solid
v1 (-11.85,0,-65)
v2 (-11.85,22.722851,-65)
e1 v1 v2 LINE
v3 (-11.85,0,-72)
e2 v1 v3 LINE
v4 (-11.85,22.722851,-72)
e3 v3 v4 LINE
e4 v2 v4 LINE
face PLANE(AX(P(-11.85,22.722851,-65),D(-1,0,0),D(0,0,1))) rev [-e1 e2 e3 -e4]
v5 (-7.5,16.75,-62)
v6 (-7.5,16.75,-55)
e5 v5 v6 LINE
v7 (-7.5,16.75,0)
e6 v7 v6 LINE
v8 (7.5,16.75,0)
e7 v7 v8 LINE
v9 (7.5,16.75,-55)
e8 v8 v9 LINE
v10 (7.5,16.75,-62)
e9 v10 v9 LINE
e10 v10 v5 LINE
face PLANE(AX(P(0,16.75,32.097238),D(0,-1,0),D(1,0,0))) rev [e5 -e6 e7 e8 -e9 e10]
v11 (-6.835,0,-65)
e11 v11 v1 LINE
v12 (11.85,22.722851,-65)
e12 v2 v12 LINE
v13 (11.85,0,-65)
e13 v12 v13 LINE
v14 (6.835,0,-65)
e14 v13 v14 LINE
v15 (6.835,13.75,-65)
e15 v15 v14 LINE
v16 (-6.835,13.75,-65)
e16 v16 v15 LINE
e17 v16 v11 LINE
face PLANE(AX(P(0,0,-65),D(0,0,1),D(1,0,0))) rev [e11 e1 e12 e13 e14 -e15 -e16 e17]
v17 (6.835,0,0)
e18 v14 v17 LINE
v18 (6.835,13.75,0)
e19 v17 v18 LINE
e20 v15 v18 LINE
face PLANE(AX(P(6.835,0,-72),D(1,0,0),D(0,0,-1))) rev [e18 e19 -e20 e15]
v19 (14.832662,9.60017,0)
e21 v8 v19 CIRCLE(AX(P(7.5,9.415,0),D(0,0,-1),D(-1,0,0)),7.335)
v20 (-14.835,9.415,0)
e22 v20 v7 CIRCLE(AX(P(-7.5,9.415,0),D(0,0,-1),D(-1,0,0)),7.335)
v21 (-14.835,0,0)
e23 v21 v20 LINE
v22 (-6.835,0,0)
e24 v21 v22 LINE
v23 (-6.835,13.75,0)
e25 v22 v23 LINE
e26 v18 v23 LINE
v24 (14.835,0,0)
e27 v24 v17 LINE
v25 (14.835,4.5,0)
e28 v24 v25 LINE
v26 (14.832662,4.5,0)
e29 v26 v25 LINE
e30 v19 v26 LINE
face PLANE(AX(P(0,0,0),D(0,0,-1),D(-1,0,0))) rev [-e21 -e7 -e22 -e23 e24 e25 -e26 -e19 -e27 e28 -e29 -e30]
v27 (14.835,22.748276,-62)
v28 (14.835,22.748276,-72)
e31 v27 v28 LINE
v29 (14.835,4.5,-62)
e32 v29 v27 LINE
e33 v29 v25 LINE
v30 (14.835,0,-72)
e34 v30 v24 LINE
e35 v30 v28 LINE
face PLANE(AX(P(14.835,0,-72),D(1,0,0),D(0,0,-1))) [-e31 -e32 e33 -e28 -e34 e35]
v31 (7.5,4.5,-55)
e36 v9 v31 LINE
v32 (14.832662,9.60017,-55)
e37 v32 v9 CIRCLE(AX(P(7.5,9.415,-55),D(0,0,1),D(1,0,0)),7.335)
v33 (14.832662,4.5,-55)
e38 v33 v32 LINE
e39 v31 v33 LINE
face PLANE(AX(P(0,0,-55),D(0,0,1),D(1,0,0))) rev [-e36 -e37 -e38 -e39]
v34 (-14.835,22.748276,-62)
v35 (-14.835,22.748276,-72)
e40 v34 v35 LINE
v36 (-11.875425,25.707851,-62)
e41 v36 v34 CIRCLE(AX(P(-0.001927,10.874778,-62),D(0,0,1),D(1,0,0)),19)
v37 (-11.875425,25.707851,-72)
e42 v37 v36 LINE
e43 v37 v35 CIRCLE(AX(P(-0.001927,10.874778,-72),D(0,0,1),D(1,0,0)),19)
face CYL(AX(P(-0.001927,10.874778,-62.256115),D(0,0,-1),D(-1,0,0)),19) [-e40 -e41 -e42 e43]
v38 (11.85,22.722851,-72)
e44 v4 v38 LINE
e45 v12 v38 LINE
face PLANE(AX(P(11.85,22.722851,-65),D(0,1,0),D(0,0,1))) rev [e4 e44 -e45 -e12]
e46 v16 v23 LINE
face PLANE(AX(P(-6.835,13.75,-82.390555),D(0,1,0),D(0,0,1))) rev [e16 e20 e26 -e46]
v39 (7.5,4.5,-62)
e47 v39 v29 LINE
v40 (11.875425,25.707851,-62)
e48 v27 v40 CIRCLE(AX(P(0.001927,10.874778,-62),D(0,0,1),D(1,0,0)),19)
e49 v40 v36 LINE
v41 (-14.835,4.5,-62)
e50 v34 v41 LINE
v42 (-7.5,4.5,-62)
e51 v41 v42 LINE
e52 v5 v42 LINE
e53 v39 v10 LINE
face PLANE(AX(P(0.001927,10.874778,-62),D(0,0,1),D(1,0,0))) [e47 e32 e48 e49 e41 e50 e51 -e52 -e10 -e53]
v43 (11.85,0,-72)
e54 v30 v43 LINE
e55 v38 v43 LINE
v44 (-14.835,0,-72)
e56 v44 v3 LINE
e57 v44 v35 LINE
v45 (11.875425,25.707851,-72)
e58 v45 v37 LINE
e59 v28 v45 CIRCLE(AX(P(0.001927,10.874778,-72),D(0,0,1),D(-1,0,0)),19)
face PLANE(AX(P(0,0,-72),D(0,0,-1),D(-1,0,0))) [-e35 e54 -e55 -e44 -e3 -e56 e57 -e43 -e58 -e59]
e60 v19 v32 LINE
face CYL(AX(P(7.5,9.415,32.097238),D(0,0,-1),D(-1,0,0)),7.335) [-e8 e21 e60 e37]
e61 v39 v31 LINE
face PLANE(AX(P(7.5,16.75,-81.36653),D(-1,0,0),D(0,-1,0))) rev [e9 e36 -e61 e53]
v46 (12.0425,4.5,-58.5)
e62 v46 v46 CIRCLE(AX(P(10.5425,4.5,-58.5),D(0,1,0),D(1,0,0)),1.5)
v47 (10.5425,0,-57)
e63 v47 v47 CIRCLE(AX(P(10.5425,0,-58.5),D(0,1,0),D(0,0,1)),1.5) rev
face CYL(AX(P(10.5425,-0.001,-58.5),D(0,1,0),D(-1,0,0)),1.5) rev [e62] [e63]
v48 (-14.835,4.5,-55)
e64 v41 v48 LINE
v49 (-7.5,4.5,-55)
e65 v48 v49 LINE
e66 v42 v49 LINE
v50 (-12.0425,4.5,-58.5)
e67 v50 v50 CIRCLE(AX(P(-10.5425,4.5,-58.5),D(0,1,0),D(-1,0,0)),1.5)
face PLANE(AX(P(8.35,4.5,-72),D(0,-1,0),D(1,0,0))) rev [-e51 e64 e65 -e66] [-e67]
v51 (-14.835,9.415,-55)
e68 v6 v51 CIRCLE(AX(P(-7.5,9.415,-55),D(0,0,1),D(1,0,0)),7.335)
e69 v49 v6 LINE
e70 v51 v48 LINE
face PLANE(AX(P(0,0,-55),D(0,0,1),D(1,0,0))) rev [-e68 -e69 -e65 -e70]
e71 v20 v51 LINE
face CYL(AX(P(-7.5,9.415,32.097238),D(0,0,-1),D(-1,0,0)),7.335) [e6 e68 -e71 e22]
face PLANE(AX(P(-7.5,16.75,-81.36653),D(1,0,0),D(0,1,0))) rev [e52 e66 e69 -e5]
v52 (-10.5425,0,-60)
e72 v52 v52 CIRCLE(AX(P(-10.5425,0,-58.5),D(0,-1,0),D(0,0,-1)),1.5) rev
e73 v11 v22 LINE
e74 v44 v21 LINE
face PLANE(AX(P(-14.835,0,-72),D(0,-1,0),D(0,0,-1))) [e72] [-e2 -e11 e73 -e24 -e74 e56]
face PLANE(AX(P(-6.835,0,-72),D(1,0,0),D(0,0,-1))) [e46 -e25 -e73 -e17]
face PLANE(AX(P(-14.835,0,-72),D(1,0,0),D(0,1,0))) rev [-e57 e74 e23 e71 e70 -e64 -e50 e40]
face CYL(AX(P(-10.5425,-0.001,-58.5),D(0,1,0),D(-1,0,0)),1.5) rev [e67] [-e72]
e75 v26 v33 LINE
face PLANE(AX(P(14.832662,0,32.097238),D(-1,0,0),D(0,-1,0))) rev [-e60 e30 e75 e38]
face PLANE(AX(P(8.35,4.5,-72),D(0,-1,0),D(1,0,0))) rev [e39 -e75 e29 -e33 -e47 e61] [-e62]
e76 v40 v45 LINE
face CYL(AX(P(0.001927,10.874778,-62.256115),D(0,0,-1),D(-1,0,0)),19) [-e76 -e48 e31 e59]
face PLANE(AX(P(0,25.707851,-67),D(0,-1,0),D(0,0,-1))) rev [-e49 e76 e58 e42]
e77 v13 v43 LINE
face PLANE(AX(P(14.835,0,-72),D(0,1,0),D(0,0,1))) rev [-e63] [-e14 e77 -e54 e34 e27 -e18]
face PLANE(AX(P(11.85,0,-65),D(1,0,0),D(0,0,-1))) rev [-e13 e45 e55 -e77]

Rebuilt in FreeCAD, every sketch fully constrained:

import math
import FreeCAD as App
import Part
import Sketcher
from FreeCAD import Vector
Q = App.Units.Quantity


def add_polygon(sketch, points):
    """Adds a closed chain of lines whose ends are joined by coincident constraints."""
    first, n = sketch.GeometryCount, len(points)
    for a, b in zip(points, points[1:] + points[:1]):
        sketch.addGeometry(Part.LineSegment(App.Vector(*a, 0), App.Vector(*b, 0)), False)
    for i in range(n):
        sketch.addConstraint(Sketcher.Constraint("Coincident", first + i, 2, first + (i + 1) % n, 1))

doc = App.newDocument("Part")
body = doc.addObject("PartDesign::Body", "Body")

sketch1 = body.newObject("Sketcher::SketchObject", "Sketch")
sketch1.AttachmentSupport = (doc.getObject("XY_Plane"), [""])
sketch1.MapMode = "FlatFace"
add_polygon(sketch1, [(-14.8, 0), (-6.8, 0), (-6.8, 3), (6.8, 3), (6.8, 0), (14.8, 0), (14.8, 4.5), (-14.8, 4.5)])
sketch1.addConstraint(Sketcher.Constraint("Horizontal", 0))
sketch1.addConstraint(Sketcher.Constraint("Vertical", 1))
sketch1.addConstraint(Sketcher.Constraint("Horizontal", 2))
sketch1.addConstraint(Sketcher.Constraint("Vertical", 3))
sketch1.addConstraint(Sketcher.Constraint("Horizontal", 4))
sketch1.addConstraint(Sketcher.Constraint("Vertical", 5))
sketch1.addConstraint(Sketcher.Constraint("Horizontal", 6))
sketch1.addConstraint(Sketcher.Constraint("Vertical", 7))
sketch1.addConstraint(Sketcher.Constraint("Symmetric", 0, 2, 3, 2, -1, 1))
sketch1.addConstraint(Sketcher.Constraint("Symmetric", 4, 2, 7, 2, -2))
sketch1.addConstraint(Sketcher.Constraint("DistanceX", 0, 1, 0, 2, Q("8 mm")))
sketch1.addConstraint(Sketcher.Constraint("DistanceY", 1, 1, 1, 2, Q("3 mm")))
sketch1.addConstraint(Sketcher.Constraint("DistanceY", 5, 1, 5, 2, Q("4.5 mm")))
sketch1.addConstraint(Sketcher.Constraint("DistanceX", 2, 1, 2, 2, Q("13.67 mm")))
pad1 = body.newObject("PartDesign::Pad", "Pad")
pad1.Profile = sketch1
pad1.Length = 72
pad1.Reversed = True

sketch2 = body.newObject("Sketcher::SketchObject", "Sketch001")
sketch2.AttachmentSupport = (doc.getObject("XY_Plane"), [""])
sketch2.MapMode = "FlatFace"
sketch2.AttachmentOffset = App.Placement(Vector(0, 0, -72), App.Rotation())
add_polygon(sketch2, [(14.8, 25.7), (14.8, 0), (10.3, 0), (10.3, 21.2), (-10.3, 21.2), (-10.3, 0), (-14.8, 0), (-14.8, 25.7)])
sketch2.addConstraint(Sketcher.Constraint("Vertical", 0))
sketch2.addConstraint(Sketcher.Constraint("Horizontal", 1))
sketch2.addConstraint(Sketcher.Constraint("Vertical", 2))
sketch2.addConstraint(Sketcher.Constraint("Horizontal", 3))
sketch2.addConstraint(Sketcher.Constraint("Vertical", 4))
sketch2.addConstraint(Sketcher.Constraint("Horizontal", 5))
sketch2.addConstraint(Sketcher.Constraint("Vertical", 6))
sketch2.addConstraint(Sketcher.Constraint("Horizontal", 7))
sketch2.addConstraint(Sketcher.Constraint("Symmetric", 1, 2, 4, 2, -1, 1))
sketch2.addConstraint(Sketcher.Constraint("Symmetric", 0, 2, 5, 2, -2))
sketch2.addConstraint(Sketcher.Constraint("DistanceX", 3, 2, 3, 1, Q("20.7 mm")))
sketch2.addConstraint(Sketcher.Constraint("DistanceX", 7, 1, 7, 2, Q("29.67 mm")))
sketch2.addConstraint(Sketcher.Constraint("DistanceY", 3, 2, 6, 2, Q("4.485 mm")))
sketch2.addConstraint(Sketcher.Constraint("DistanceY", 0, 2, 0, 1, Q("25.707851 mm")))
pad2 = body.newObject("PartDesign::Pad", "Pad001")
pad2.Profile = sketch2
pad2.Length = 5

sketch3 = body.newObject("Sketcher::SketchObject", "Sketch002")
sketch3.AttachmentSupport = (doc.getObject("XY_Plane"), [""])
sketch3.MapMode = "FlatFace"
sketch3.AttachmentOffset = App.Placement(Vector(0, 0, -72), App.Rotation())
sketch3.addGeometry(Part.LineSegment(Vector(15.00907, 25.881921, 0), Vector(15.00907, 22.527488, 0)), False)
sketch3.addGeometry(Part.ArcOfCircle(Part.Circle(Vector(0.001927, 10.874778, 0), Vector(0, 0, 1), 19), math.radians(37.828538), math.radians(52.171462)), False)
sketch3.addGeometry(Part.LineSegment(Vector(11.654637, 25.881921, 0), Vector(15.00907, 25.881921, 0)), False)
sketch3.addGeometry(Part.LineSegment(Vector(-15.00907, 22.527488, 0), Vector(-15.00907, 25.881921, 0)), False)
sketch3.addGeometry(Part.LineSegment(Vector(-15.00907, 25.881921, 0), Vector(-11.654637, 25.881921, 0)), False)
sketch3.addGeometry(Part.ArcOfCircle(Part.Circle(Vector(-0.001927, 10.874778, 0), Vector(0, 0, 1), 19), math.radians(127.828538), math.radians(142.171462)), False)
sketch3.addConstraint(Sketcher.Constraint("Coincident", 0, 2, 1, 1))
sketch3.addConstraint(Sketcher.Constraint("Coincident", 1, 2, 2, 1))
sketch3.addConstraint(Sketcher.Constraint("Coincident", 2, 2, 0, 1))
sketch3.addConstraint(Sketcher.Constraint("Coincident", 3, 2, 4, 1))
sketch3.addConstraint(Sketcher.Constraint("Coincident", 4, 2, 5, 1))
sketch3.addConstraint(Sketcher.Constraint("Coincident", 5, 2, 3, 1))
sketch3.addConstraint(Sketcher.Constraint("Vertical", 0))
sketch3.addConstraint(Sketcher.Constraint("Horizontal", 2))
sketch3.addConstraint(Sketcher.Constraint("Vertical", 3))
sketch3.addConstraint(Sketcher.Constraint("Horizontal", 4))
sketch3.addConstraint(Sketcher.Constraint("Equal", 1, 5))
sketch3.addConstraint(Sketcher.Constraint("Symmetric", 1, 3, 5, 3, -2))
sketch3.addConstraint(Sketcher.Constraint("Symmetric", 2, 2, 3, 2, -2))
sketch3.addConstraint(Sketcher.Constraint("Equal", 4, 0))
sketch3.addConstraint(Sketcher.Constraint("Radius", 1, Q("19 mm")))
sketch3.addConstraint(Sketcher.Constraint("DistanceX", 2, 1, 2, 2, Q("3.354433 mm")))
sketch3.addConstraint(Sketcher.Constraint("DistanceY", -1, 1, 1, 3, Q("10.874778 mm")))
sketch3.addConstraint(Sketcher.Constraint("DistanceX", -1, 1, 0, 2, Q("15.00907 mm")))
pocket1 = body.newObject("PartDesign::Pocket", "Pocket")
pocket1.Profile = sketch3
pocket1.Length = 5
pocket1.Reversed = True

sketch4 = body.newObject("Sketcher::SketchObject", "Sketch003")
sketch4.AttachmentSupport = (doc.getObject("XY_Plane"), [""])
sketch4.MapMode = "FlatFace"
sketch4.AttachmentOffset = App.Placement(Vector(0, 0, -67), App.Rotation())
sketch4.addGeometry(Part.LineSegment(Vector(14.835, 4.5, 0), Vector(14.835, 22.748276, 0)), False)
sketch4.addGeometry(Part.ArcOfCircle(Part.Circle(Vector(0.001927, 10.874778, 0), Vector(0, 0, 1), 19), math.radians(38.676384), math.radians(51.323616)), False)
sketch4.addGeometry(Part.LineSegment(Vector(11.875425, 25.707851, 0), Vector(-11.875425, 25.707851, 0)), False)
sketch4.addGeometry(Part.ArcOfCircle(Part.Circle(Vector(-0.001927, 10.874778, 0), Vector(0, 0, 1), 19), math.radians(128.676384), math.radians(141.323616)), False)
sketch4.addGeometry(Part.LineSegment(Vector(-14.835, 22.748276, 0), Vector(-14.835, 4.5, 0)), False)
sketch4.addGeometry(Part.LineSegment(Vector(-14.835, 4.5, 0), Vector(14.835, 4.5, 0)), False)
sketch4.addConstraint(Sketcher.Constraint("Coincident", 0, 2, 1, 1))
sketch4.addConstraint(Sketcher.Constraint("Coincident", 1, 2, 2, 1))
sketch4.addConstraint(Sketcher.Constraint("Coincident", 2, 2, 3, 1))
sketch4.addConstraint(Sketcher.Constraint("Coincident", 3, 2, 4, 1))
sketch4.addConstraint(Sketcher.Constraint("Coincident", 4, 2, 5, 1))
sketch4.addConstraint(Sketcher.Constraint("Coincident", 5, 2, 0, 1))
sketch4.addConstraint(Sketcher.Constraint("Vertical", 0))
sketch4.addConstraint(Sketcher.Constraint("Horizontal", 2))
sketch4.addConstraint(Sketcher.Constraint("Vertical", 4))
sketch4.addConstraint(Sketcher.Constraint("Horizontal", 5))
sketch4.addConstraint(Sketcher.Constraint("Equal", 1, 3))
sketch4.addConstraint(Sketcher.Constraint("Symmetric", 1, 3, 3, 3, -2))
sketch4.addConstraint(Sketcher.Constraint("Horizontal", 0, 2, 3, 2))
sketch4.addConstraint(Sketcher.Constraint("Radius", 1, Q("19 mm")))
sketch4.addConstraint(Sketcher.Constraint("DistanceX", 5, 1, 5, 2, Q("29.67 mm")))
sketch4.addConstraint(Sketcher.Constraint("DistanceY", -1, 1, 4, 2, Q("4.5 mm")))
sketch4.addConstraint(Sketcher.Constraint("DistanceX", 2, 2, 2, 1, Q("23.75085 mm")))
sketch4.addConstraint(Sketcher.Constraint("DistanceY", 0, 1, 0, 2, Q("18.248276 mm")))
sketch4.addConstraint(Sketcher.Constraint("DistanceY", -1, 1, 1, 3, Q("10.874778 mm")))
pad3 = body.newObject("PartDesign::Pad", "Pad002")
pad3.Profile = sketch4
pad3.Length = 5

sketch5 = body.newObject("Sketcher::SketchObject", "Sketch004")
sketch5.AttachmentSupport = (doc.getObject("XY_Plane"), [""])
sketch5.MapMode = "FlatFace"
sketch5.AttachmentOffset = App.Placement(Vector(0, 0, -55), App.Rotation())
sketch5.addGeometry(Part.LineSegment(Vector(-14.8, 4.5, 0), Vector(14.8, 4.5, 0)), False)
sketch5.addGeometry(Part.LineSegment(Vector(14.8, 4.5, 0), Vector(14.8, 9.6, 0)), False)
sketch5.addGeometry(Part.ArcOfCircle(Part.Circle(Vector(7.5, 9.4, 0), Vector(0, 0, 1), 7.3), math.radians(1), math.radians(90)), False)
sketch5.addGeometry(Part.LineSegment(Vector(7.5, 16.8, 0), Vector(-7.5, 16.8, 0)), False)
sketch5.addGeometry(Part.ArcOfCircle(Part.Circle(Vector(-7.5, 9.4, 0), Vector(0, 0, 1), 7.3), math.radians(90), math.radians(180)), False)
sketch5.addGeometry(Part.LineSegment(Vector(-14.8, 9.4, 0), Vector(-14.8, 4.5, 0)), False)
sketch5.addConstraint(Sketcher.Constraint("Coincident", 0, 2, 1, 1))
sketch5.addConstraint(Sketcher.Constraint("Coincident", 1, 2, 2, 1))
sketch5.addConstraint(Sketcher.Constraint("Tangent", 2, 2, 3, 1))
sketch5.addConstraint(Sketcher.Constraint("Tangent", 3, 2, 4, 1))
sketch5.addConstraint(Sketcher.Constraint("Tangent", 4, 2, 5, 1))
sketch5.addConstraint(Sketcher.Constraint("Coincident", 5, 2, 0, 1))
sketch5.addConstraint(Sketcher.Constraint("Horizontal", 0))
sketch5.addConstraint(Sketcher.Constraint("Vertical", 1))
sketch5.addConstraint(Sketcher.Constraint("Horizontal", 3))
sketch5.addConstraint(Sketcher.Constraint("Vertical", 5))
sketch5.addConstraint(Sketcher.Constraint("Equal", 2, 4))
sketch5.addConstraint(Sketcher.Constraint("DistanceX", 3, 2, 3, 1, Q("15 mm")))
sketch5.addConstraint(Sketcher.Constraint("Radius", 2, Q("7.335 mm")))
sketch5.addConstraint(Sketcher.Constraint("DistanceX", -1, 1, 2, 3, Q("7.5 mm")))
sketch5.addConstraint(Sketcher.Constraint("DistanceY", -1, 1, 0, 2, Q("4.5 mm")))
sketch5.addConstraint(Sketcher.Constraint("DistanceY", 5, 2, 5, 1, Q("4.915 mm")))
sketch5.addConstraint(Sketcher.Constraint("DistanceY", 1, 1, 1, 2, Q("5.10017 mm")))
pad4 = body.newObject("PartDesign::Pad", "Pad003")
pad4.Profile = sketch5
pad4.Length = 55

sketch6 = body.newObject("Sketcher::SketchObject", "Sketch005")
sketch6.AttachmentSupport = (doc.getObject("XY_Plane"), [""])
sketch6.MapMode = "FlatFace"
sketch6.AttachmentOffset = App.Placement(Vector(0, 0, -72), App.Rotation())
add_polygon(sketch6, [(10.3, 4.5), (10.3, 0), (6.8, 0), (6.8, 3), (-6.8, 3), (-6.8, 0), (-10.3, 0), (-10.3, 4.5)])
sketch6.addConstraint(Sketcher.Constraint("Vertical", 0))
sketch6.addConstraint(Sketcher.Constraint("Horizontal", 1))
sketch6.addConstraint(Sketcher.Constraint("Vertical", 2))
sketch6.addConstraint(Sketcher.Constraint("Horizontal", 3))
sketch6.addConstraint(Sketcher.Constraint("Vertical", 4))
sketch6.addConstraint(Sketcher.Constraint("Horizontal", 5))
sketch6.addConstraint(Sketcher.Constraint("Vertical", 6))
sketch6.addConstraint(Sketcher.Constraint("Horizontal", 7))
sketch6.addConstraint(Sketcher.Constraint("Symmetric", 1, 2, 4, 2, -1, 1))
sketch6.addConstraint(Sketcher.Constraint("Symmetric", 0, 2, 5, 2, -2))
sketch6.addConstraint(Sketcher.Constraint("DistanceY", 2, 1, 2, 2, Q("3 mm")))
sketch6.addConstraint(Sketcher.Constraint("DistanceX", 7, 1, 7, 2, Q("20.7 mm")))
sketch6.addConstraint(Sketcher.Constraint("DistanceY", 0, 2, 0, 1, Q("4.5 mm")))
sketch6.addConstraint(Sketcher.Constraint("DistanceX", 3, 2, 3, 1, Q("13.67 mm")))
pocket2 = body.newObject("PartDesign::Pocket", "Pocket001")
pocket2.Profile = sketch6
pocket2.Length = 5
pocket2.Reversed = True

sketch7 = body.newObject("Sketcher::SketchObject", "Sketch006")
sketch7.AttachmentSupport = (doc.getObject("XY_Plane"), [""])
sketch7.MapMode = "FlatFace"
sketch7.AttachmentOffset = App.Placement(Vector(0, 0, -55), App.Rotation())
add_polygon(sketch7, [(8, 17), (8, 4), (-8, 4), (-8, 17)])
sketch7.addConstraint(Sketcher.Constraint("Vertical", 0))
sketch7.addConstraint(Sketcher.Constraint("Horizontal", 1))
sketch7.addConstraint(Sketcher.Constraint("Vertical", 2))
sketch7.addConstraint(Sketcher.Constraint("Horizontal", 3))
sketch7.addConstraint(Sketcher.Constraint("DistanceX", 1, 2, 1, 1, Q("15 mm")))
sketch7.addConstraint(Sketcher.Constraint("DistanceY", 0, 2, 0, 1, Q("12.25 mm")))
sketch7.addConstraint(Sketcher.Constraint("DistanceX", -1, 1, 0, 2, Q("7.5 mm")))
sketch7.addConstraint(Sketcher.Constraint("DistanceY", -1, 1, 0, 2, Q("4.5 mm")))
pad5 = body.newObject("PartDesign::Pad", "Pad004")
pad5.Profile = sketch7
pad5.Length = 7
pad5.Reversed = True

sketch8 = body.newObject("Sketcher::SketchObject", "Sketch007")
sketch8.AttachmentSupport = (doc.getObject("XZ_Plane"), [""])
sketch8.MapMode = "FlatFace"
sketch8.AttachmentOffset = App.Placement(Vector(0, 0, -4.5), App.Rotation())
sketch8.addGeometry(Part.Circle(Vector(-10.5, -58.5, 0), Vector(0, 0, 1), 1.5), False)
sketch8.addConstraint(Sketcher.Constraint("Diameter", 0, Q("3 mm")))
sketch8.addConstraint(Sketcher.Constraint("DistanceY", 0, 3, -1, 1, Q("58.5 mm")))
sketch8.addConstraint(Sketcher.Constraint("DistanceX", 0, 3, -1, 1, Q("10.5425 mm")))
pocket3 = body.newObject("PartDesign::Pocket", "Pocket002")
pocket3.Profile = sketch8
pocket3.Type = "UpToFirst"
pocket3.Reversed = True

sketch9 = body.newObject("Sketcher::SketchObject", "Sketch008")
sketch9.AttachmentSupport = (doc.getObject("XZ_Plane"), [""])
sketch9.MapMode = "FlatFace"
sketch9.AttachmentOffset = App.Placement(Vector(0, 0, -4.5), App.Rotation())
sketch9.addGeometry(Part.Circle(Vector(10.5, -58.5, 0), Vector(0, 0, 1), 1.5), False)
sketch9.addConstraint(Sketcher.Constraint("Diameter", 0, Q("3 mm")))
sketch9.addConstraint(Sketcher.Constraint("DistanceY", 0, 3, -1, 1, Q("58.5 mm")))
sketch9.addConstraint(Sketcher.Constraint("DistanceX", -1, 1, 0, 3, Q("10.5425 mm")))
pocket4 = body.newObject("PartDesign::Pocket", "Pocket003")
pocket4.Profile = sketch9
pocket4.Type = "UpToFirst"
pocket4.Reversed = True

sketch10 = body.newObject("Sketcher::SketchObject", "Sketch009")
sketch10.AttachmentSupport = (doc.getObject("XY_Plane"), [""])
sketch10.MapMode = "FlatFace"
sketch10.AttachmentOffset = App.Placement(Vector(0, 0, -72), App.Rotation())
add_polygon(sketch10, [(12, 23), (12, 0), (-12, 0), (-12, 23)])
sketch10.addConstraint(Sketcher.Constraint("Vertical", 0))
sketch10.addConstraint(Sketcher.Constraint("Horizontal", 1))
sketch10.addConstraint(Sketcher.Constraint("Vertical", 2))
sketch10.addConstraint(Sketcher.Constraint("Horizontal", 3))
sketch10.addConstraint(Sketcher.Constraint("Symmetric", 0, 2, 1, 2, -1, 1))
sketch10.addConstraint(Sketcher.Constraint("DistanceX", 1, 2, 1, 1, Q("23.7 mm")))
sketch10.addConstraint(Sketcher.Constraint("DistanceY", 0, 2, 0, 1, Q("22.722851 mm")))
pocket5 = body.newObject("PartDesign::Pocket", "Pocket004")
pocket5.Profile = sketch10
pocket5.Length = 7
pocket5.Reversed = True

sketch11 = body.newObject("Sketcher::SketchObject", "Sketch010")
sketch11.AttachmentSupport = (doc.getObject("XY_Plane"), [""])
sketch11.MapMode = "FlatFace"
add_polygon(sketch11, [(-7, 14), (-7, 3), (7, 3), (7, 14)])
sketch11.addConstraint(Sketcher.Constraint("Vertical", 0))
sketch11.addConstraint(Sketcher.Constraint("Horizontal", 1))
sketch11.addConstraint(Sketcher.Constraint("Vertical", 2))
sketch11.addConstraint(Sketcher.Constraint("Horizontal", 3))
sketch11.addConstraint(Sketcher.Constraint("DistanceY", -1, 1, 0, 2, Q("3 mm")))
sketch11.addConstraint(Sketcher.Constraint("DistanceX", 1, 1, 1, 2, Q("13.67 mm")))
sketch11.addConstraint(Sketcher.Constraint("DistanceY", 0, 2, 0, 1, Q("10.75 mm")))
sketch11.addConstraint(Sketcher.Constraint("DistanceX", 0, 2, -1, 1, Q("6.835 mm")))
pocket6 = body.newObject("PartDesign::Pocket", "Pocket005")
pocket6.Profile = sketch11
pocket6.Length = 65

doc.recompute()
